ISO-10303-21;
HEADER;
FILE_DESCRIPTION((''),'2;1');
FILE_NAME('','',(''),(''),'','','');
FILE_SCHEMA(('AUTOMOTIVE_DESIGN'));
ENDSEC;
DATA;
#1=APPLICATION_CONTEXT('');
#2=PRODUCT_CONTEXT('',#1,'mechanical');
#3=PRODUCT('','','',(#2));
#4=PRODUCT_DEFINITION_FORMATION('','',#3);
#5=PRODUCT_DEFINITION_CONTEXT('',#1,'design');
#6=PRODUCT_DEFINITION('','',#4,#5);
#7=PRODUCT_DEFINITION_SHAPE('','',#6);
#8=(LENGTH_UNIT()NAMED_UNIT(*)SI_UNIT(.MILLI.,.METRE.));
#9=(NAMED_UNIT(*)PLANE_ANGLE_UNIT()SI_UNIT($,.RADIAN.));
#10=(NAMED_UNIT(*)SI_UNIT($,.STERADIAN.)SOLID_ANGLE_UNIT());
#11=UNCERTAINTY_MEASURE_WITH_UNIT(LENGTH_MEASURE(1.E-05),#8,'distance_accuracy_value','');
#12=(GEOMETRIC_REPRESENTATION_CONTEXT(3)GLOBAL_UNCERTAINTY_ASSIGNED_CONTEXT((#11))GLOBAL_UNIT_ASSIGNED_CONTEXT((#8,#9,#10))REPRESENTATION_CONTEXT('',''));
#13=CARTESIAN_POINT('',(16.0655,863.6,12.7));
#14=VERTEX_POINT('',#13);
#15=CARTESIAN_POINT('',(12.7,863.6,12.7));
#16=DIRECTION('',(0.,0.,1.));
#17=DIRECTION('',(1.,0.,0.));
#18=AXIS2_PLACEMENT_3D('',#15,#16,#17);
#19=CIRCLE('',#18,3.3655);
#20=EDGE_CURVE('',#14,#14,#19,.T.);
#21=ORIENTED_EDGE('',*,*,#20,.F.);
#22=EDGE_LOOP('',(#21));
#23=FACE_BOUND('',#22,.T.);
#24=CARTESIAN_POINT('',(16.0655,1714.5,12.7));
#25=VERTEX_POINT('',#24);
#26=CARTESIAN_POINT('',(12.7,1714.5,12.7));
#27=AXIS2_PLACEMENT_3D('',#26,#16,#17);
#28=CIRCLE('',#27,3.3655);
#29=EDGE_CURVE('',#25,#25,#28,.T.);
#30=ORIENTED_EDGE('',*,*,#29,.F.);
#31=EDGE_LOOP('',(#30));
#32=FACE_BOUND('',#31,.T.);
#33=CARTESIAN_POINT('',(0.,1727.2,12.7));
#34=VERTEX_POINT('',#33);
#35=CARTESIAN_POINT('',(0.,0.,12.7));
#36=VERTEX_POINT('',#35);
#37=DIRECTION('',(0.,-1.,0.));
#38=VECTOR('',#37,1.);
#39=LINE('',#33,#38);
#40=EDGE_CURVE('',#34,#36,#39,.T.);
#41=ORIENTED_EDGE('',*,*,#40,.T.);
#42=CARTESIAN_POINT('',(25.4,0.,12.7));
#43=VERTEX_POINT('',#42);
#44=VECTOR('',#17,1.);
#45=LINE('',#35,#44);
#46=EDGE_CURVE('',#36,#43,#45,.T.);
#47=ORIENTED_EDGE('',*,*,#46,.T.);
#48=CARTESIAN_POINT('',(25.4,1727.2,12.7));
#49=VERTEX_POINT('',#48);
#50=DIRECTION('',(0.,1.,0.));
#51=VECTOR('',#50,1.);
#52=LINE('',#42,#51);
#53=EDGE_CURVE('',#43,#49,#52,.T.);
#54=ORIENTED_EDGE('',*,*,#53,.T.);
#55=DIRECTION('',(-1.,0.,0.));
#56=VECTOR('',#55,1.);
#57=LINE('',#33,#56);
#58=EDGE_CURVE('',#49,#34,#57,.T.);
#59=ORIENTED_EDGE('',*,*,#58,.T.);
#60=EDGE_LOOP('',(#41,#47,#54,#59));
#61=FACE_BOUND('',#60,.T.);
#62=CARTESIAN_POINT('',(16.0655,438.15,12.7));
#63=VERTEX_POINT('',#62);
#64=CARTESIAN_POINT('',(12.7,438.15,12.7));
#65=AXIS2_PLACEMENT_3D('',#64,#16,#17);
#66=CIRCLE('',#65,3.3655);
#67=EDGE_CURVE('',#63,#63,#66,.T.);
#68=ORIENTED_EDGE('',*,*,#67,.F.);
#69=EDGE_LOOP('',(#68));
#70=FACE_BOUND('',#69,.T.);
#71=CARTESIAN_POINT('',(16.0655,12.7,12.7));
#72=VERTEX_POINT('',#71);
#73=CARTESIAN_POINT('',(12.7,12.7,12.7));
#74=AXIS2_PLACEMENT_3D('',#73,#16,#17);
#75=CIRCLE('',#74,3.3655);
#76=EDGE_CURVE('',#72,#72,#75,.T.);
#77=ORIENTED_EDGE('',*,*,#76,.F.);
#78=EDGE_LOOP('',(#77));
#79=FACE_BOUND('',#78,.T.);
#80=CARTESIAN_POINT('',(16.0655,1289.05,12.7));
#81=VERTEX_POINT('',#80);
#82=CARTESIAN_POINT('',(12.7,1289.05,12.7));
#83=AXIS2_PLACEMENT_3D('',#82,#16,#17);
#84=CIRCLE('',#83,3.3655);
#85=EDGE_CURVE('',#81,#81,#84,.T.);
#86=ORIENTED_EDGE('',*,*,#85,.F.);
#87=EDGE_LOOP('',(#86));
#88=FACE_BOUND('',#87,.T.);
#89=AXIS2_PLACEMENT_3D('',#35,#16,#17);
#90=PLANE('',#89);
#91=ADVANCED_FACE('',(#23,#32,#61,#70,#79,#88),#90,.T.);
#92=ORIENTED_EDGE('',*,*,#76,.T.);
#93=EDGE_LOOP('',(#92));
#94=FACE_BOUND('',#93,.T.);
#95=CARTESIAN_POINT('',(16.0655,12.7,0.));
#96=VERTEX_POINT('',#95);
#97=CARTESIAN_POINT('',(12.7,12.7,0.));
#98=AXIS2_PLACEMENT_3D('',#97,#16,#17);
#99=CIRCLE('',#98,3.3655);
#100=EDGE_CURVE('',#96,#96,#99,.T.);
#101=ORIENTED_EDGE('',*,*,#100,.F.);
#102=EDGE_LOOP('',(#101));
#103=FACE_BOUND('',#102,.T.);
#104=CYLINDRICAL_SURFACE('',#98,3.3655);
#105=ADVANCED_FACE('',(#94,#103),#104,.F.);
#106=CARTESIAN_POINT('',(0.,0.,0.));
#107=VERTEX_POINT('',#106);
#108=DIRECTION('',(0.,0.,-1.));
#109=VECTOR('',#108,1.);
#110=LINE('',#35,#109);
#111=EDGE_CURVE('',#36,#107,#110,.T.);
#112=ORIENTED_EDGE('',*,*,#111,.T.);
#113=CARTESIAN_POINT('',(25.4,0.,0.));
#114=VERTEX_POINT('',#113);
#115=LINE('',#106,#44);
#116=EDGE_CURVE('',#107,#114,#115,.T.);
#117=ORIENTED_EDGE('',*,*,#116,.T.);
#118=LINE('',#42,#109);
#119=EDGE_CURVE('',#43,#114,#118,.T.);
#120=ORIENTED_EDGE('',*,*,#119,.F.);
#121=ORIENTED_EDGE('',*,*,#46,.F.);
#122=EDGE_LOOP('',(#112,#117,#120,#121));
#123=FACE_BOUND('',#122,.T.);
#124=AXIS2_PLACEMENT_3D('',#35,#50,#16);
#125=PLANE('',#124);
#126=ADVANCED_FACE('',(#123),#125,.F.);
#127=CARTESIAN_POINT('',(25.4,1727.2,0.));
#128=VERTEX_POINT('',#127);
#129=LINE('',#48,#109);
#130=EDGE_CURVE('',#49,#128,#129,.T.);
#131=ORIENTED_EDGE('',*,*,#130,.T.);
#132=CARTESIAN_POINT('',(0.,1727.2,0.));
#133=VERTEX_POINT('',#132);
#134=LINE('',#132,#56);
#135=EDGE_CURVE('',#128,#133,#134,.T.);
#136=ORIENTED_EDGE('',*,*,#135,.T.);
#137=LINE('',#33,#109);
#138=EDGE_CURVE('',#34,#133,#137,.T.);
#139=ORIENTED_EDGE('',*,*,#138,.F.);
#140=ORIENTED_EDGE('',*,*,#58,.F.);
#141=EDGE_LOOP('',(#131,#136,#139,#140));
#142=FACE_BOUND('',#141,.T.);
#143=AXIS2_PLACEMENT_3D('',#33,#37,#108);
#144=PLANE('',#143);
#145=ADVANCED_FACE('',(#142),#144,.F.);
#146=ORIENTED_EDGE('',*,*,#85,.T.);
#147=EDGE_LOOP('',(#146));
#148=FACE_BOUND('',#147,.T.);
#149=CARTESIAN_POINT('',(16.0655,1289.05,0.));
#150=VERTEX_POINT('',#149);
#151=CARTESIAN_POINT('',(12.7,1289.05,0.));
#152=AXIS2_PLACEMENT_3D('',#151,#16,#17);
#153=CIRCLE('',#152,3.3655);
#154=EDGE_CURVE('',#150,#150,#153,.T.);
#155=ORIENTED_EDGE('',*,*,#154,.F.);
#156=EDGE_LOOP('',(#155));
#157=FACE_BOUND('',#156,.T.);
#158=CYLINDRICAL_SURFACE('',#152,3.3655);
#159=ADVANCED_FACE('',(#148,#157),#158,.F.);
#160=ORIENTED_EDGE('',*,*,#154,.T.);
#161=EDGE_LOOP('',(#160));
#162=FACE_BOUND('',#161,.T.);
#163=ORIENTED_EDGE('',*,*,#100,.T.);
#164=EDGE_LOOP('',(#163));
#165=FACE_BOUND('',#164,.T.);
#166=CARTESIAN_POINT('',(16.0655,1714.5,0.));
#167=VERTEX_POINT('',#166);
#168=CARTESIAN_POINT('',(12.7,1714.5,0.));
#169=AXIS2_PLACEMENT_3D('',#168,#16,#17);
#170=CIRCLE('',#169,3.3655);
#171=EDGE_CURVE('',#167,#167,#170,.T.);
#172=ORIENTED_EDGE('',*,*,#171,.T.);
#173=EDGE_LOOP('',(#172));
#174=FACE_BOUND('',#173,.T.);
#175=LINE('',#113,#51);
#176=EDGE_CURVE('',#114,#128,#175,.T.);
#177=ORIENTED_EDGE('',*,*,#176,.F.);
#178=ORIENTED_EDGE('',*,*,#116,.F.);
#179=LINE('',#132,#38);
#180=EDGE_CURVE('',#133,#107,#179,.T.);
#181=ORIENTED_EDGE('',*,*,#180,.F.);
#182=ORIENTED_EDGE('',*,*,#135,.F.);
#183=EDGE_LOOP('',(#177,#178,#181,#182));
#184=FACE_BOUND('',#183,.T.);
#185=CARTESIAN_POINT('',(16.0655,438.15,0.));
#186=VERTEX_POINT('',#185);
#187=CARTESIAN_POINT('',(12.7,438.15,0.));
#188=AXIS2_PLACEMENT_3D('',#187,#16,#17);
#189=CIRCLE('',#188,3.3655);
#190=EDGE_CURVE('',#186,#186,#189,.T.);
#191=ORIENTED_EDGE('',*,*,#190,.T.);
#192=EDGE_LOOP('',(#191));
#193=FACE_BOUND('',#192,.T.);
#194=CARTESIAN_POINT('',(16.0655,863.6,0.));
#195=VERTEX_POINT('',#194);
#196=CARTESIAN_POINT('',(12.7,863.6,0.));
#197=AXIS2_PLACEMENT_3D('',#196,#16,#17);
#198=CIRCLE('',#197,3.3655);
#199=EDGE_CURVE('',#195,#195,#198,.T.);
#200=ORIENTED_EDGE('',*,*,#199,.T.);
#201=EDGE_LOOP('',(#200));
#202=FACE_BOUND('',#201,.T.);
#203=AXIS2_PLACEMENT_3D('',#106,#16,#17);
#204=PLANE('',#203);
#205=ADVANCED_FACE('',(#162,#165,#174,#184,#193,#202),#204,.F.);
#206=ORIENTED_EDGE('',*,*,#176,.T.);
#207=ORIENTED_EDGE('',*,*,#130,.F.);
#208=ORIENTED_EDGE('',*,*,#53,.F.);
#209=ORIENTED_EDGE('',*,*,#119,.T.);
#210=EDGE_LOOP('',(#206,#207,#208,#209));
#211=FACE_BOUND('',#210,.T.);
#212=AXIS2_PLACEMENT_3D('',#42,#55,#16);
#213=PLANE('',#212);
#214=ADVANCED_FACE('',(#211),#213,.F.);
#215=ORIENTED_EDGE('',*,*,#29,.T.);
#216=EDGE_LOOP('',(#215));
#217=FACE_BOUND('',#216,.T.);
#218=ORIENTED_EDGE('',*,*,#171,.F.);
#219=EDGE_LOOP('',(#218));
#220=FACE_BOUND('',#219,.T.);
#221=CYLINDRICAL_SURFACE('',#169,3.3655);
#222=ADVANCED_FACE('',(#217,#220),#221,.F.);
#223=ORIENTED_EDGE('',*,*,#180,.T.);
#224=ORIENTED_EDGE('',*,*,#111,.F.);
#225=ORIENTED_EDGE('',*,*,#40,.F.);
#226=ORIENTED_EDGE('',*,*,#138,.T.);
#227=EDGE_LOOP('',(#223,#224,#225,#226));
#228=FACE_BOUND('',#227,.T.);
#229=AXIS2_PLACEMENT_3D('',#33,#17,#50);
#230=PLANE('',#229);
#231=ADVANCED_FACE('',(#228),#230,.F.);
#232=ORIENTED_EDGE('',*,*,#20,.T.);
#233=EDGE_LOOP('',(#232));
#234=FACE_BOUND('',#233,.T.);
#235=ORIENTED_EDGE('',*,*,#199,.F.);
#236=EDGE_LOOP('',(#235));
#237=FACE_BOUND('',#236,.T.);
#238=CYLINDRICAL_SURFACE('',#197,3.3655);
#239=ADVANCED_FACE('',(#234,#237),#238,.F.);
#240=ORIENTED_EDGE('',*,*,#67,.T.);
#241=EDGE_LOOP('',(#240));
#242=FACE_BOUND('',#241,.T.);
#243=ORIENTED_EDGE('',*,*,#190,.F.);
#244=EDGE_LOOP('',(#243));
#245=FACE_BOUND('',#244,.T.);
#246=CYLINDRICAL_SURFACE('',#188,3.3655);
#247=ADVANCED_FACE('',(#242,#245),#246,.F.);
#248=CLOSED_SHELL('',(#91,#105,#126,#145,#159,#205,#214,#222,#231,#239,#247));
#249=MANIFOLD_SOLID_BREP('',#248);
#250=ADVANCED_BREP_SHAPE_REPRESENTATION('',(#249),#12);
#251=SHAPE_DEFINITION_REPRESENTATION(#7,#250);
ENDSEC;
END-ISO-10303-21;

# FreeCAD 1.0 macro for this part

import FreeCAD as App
import Part
import Sketcher
from FreeCAD import Vector
Q = App.Units.Quantity


def add_polygon(sketch, points):
    """Adds a closed chain of lines whose ends are joined by coincident constraints."""
    first, n = sketch.GeometryCount, len(points)
    for a, b in zip(points, points[1:] + points[:1]):
        sketch.addGeometry(Part.LineSegment(App.Vector(*a, 0), App.Vector(*b, 0)), False)
    for i in range(n):
        sketch.addConstraint(Sketcher.Constraint("Coincident", first + i, 2, first + (i + 1) % n, 1))

doc = App.newDocument("Part")
body = doc.addObject("PartDesign::Body", "Body")

sketch1 = body.newObject("Sketcher::SketchObject", "Sketch")
sketch1.AttachmentSupport = (doc.getObject("XY_Plane"), [""])
sketch1.MapMode = "FlatFace"
add_polygon(sketch1, [(0, 1727.2), (0, 0), (25.4, 0), (25.4, 1727.2)])
sketch1.addConstraint([
    Sketcher.Constraint("Vertical", 0),
    Sketcher.Constraint("Horizontal", 1),
    Sketcher.Constraint("Vertical", 2),
    Sketcher.Constraint("Horizontal", 3),
    Sketcher.Constraint("Coincident", 0, 2, -1, 1),
    Sketcher.Constraint("DistanceX", 1, 1, 1, 2, Q("1 in")),
    Sketcher.Constraint("DistanceY", 0, 2, 0, 1, Q("68 in")),
])
pad1 = body.newObject("PartDesign::Pad", "Pad")
pad1.Profile = sketch1
pad1.Length = Q("0.5 in")

sketch2 = body.newObject("Sketcher::SketchObject", "Sketch001")
sketch2.AttachmentSupport = (doc.getObject("XY_Plane"), [""])
sketch2.MapMode = "FlatFace"
sketch2.AttachmentOffset = App.Placement(Vector(0, 0, 0.5 * 25.4), App.Rotation())
sketch2.addGeometry(Part.Circle(Vector(12.7, 12.7, 0), Vector(0, 0, 1), 3.3655), False)
sketch2.addConstraint([
    Sketcher.Constraint("Diameter", 0, Q("0.265 in")),
    Sketcher.Constraint("DistanceX", -1, 1, 0, 3, Q("0.5 in")),
    Sketcher.Constraint("DistanceY", -1, 1, 0, 3, Q("0.5 in")),
])
pocket1 = body.newObject("PartDesign::Pocket", "Pocket")
pocket1.Profile = sketch2
pocket1.Type = "ThroughAll"
doc.recompute()

linearpattern = body.newObject("PartDesign::LinearPattern", "LinearPattern")
linearpattern.Originals = [pocket1]
linearpattern.Direction = (doc.getObject("Y_Axis"), [""])
linearpattern.Mode = "offset"
linearpattern.Offset = Q("16.75 in")
linearpattern.Occurrences = 5
body.Tip = linearpattern

doc.recompute()
